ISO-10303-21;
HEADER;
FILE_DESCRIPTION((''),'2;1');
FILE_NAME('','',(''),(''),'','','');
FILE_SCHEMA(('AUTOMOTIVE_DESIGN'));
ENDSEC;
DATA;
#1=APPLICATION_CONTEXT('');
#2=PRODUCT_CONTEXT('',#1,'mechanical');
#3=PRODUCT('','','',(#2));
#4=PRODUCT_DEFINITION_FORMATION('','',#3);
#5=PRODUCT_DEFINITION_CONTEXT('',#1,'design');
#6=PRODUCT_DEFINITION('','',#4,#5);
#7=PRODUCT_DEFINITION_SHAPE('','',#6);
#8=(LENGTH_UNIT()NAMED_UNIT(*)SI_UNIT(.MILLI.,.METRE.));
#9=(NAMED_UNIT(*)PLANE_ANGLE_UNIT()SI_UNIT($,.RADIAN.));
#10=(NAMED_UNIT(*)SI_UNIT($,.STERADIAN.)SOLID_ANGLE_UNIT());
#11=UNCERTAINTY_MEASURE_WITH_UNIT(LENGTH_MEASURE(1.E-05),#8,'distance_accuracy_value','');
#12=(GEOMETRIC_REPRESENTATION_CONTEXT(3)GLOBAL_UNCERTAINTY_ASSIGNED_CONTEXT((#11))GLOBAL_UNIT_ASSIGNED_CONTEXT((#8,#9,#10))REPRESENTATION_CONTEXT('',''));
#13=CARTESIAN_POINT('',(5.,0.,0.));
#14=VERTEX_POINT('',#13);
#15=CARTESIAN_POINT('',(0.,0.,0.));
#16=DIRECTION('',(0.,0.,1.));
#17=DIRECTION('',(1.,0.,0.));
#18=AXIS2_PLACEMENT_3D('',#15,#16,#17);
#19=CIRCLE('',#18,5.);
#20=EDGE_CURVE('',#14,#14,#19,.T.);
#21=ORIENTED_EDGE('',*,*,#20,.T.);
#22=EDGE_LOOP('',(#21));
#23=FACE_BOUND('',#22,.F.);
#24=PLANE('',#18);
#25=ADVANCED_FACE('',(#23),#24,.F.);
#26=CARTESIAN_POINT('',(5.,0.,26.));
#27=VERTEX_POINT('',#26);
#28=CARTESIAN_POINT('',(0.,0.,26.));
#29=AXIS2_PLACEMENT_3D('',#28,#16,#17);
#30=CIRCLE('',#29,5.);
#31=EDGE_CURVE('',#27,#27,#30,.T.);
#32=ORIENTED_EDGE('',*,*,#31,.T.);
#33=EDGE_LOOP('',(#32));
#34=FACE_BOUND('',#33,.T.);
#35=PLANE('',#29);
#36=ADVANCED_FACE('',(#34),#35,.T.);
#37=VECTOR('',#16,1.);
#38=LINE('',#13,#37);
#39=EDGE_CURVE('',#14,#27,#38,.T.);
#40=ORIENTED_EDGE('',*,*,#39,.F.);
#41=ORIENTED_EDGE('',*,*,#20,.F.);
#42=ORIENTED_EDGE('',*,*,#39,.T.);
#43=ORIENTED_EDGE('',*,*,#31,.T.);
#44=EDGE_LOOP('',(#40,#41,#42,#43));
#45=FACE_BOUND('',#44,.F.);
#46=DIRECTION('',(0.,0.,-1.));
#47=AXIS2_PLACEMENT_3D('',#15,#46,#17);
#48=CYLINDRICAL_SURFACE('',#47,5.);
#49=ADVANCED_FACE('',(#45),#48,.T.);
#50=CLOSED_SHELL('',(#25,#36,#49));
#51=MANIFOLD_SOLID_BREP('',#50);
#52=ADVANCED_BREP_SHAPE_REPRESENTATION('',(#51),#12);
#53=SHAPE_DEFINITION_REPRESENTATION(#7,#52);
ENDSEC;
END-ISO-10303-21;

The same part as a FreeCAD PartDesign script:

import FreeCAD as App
import Part
import Sketcher
from FreeCAD import Vector
Q = App.Units.Quantity

doc = App.newDocument("Part")
body = doc.addObject("PartDesign::Body", "Body")

sketch1 = body.newObject("Sketcher::SketchObject", "Sketch")
sketch1.AttachmentSupport = (doc.getObject("XY_Plane"), [""])
sketch1.MapMode = "FlatFace"
sketch1.addGeometry(Part.Circle(Vector(0, 0, 0), Vector(0, 0, 1), 5), False)
sketch1.addConstraint([
    Sketcher.Constraint("Coincident", 0, 3, -1, 1),
    Sketcher.Constraint("Diameter", 0, Q("10 mm")),
])
pad1 = body.newObject("PartDesign::Pad", "Pad")
pad1.Profile = sketch1
pad1.Length = 26

doc.recompute()
